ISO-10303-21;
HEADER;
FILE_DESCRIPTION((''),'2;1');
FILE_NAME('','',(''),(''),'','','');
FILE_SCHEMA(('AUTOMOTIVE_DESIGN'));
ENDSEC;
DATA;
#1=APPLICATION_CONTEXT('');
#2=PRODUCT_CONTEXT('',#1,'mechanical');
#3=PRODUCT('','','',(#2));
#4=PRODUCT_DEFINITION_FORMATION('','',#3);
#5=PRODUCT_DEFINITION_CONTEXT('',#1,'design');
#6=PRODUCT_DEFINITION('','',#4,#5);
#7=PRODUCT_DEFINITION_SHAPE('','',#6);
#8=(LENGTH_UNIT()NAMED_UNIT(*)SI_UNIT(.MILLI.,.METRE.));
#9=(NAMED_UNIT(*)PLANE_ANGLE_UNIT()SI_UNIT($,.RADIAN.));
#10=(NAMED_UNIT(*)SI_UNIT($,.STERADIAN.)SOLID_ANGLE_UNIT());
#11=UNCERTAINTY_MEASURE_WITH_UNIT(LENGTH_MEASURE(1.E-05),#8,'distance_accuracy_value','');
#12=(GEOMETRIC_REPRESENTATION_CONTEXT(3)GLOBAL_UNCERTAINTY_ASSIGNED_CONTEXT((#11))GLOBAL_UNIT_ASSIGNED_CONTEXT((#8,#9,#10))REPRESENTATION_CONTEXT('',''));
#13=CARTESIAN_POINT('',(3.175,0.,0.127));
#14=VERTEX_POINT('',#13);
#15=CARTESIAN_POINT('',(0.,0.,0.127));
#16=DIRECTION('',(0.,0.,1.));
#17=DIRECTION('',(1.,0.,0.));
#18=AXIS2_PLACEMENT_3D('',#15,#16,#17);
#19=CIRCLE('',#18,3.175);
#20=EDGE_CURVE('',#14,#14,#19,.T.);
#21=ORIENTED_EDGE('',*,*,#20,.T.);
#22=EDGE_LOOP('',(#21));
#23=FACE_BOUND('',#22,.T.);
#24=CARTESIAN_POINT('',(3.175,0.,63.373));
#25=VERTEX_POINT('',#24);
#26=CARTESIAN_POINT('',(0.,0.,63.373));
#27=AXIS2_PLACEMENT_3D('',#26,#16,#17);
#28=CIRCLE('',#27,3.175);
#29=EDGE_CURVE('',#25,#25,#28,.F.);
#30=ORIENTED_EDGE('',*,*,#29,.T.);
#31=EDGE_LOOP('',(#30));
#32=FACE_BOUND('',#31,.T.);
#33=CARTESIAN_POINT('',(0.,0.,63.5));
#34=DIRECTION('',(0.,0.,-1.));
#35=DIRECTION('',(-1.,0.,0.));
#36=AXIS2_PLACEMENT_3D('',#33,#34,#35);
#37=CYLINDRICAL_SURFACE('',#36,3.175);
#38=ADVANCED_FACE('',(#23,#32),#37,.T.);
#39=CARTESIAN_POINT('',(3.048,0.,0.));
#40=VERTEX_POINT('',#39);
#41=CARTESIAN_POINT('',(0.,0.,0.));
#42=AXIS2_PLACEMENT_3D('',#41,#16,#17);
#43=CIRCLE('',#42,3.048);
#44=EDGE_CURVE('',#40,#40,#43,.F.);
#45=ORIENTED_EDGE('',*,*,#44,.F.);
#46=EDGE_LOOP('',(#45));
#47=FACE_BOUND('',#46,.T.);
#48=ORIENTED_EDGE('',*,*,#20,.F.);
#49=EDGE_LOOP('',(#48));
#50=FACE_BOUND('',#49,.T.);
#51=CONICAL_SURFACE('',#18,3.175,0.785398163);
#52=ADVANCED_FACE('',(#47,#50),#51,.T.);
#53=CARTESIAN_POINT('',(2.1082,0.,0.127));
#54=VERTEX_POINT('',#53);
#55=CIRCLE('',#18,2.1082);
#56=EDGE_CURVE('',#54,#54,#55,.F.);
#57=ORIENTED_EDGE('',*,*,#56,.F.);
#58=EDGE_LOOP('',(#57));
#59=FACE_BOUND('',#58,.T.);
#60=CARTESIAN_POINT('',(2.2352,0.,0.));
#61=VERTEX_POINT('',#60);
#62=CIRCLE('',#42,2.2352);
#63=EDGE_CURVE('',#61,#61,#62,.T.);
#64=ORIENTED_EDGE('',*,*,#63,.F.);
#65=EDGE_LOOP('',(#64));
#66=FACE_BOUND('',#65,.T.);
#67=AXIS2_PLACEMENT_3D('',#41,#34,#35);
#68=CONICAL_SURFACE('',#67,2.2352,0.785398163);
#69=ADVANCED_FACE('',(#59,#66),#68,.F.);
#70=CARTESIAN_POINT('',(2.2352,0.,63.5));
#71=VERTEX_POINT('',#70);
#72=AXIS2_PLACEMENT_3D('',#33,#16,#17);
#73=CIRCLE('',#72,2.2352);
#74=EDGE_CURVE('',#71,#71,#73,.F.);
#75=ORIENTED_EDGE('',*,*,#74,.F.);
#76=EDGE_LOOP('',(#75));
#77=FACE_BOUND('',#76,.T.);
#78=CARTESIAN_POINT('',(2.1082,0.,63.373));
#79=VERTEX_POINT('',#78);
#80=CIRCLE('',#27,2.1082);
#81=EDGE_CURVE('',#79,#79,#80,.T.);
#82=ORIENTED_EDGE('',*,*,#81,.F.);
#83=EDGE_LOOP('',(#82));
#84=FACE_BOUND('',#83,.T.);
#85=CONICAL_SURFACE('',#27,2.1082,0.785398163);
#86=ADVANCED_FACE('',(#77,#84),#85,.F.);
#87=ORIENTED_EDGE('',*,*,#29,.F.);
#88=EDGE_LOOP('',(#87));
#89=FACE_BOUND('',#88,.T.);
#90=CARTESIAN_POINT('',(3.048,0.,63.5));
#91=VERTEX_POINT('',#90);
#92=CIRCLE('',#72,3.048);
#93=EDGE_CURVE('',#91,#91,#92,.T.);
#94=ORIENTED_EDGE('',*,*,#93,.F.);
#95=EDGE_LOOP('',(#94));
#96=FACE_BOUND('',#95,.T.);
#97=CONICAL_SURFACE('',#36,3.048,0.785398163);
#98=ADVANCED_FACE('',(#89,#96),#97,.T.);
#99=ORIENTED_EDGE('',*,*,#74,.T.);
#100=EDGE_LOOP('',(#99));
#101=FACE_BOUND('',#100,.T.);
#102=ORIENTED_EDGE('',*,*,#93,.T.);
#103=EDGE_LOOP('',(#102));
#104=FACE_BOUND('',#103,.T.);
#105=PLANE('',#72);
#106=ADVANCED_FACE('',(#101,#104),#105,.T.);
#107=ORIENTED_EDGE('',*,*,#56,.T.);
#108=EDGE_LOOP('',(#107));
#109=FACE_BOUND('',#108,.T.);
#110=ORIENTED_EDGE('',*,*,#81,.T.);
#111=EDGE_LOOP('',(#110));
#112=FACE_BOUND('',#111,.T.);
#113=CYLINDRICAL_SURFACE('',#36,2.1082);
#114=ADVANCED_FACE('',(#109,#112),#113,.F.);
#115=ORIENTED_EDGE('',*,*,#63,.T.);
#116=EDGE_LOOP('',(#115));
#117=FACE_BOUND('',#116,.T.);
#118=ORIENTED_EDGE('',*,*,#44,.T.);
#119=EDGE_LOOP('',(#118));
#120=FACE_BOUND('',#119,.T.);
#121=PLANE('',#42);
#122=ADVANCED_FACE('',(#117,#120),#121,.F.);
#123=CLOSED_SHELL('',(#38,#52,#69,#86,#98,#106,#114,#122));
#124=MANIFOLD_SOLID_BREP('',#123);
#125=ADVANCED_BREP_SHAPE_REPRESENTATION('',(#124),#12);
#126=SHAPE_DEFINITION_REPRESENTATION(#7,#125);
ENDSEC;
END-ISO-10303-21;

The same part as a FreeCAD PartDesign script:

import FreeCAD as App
import Part
import Sketcher
from FreeCAD import Vector
Q = App.Units.Quantity


def edges_at(feature, points):
    """Names of the edges that pass closest to the given points."""
    edges = feature.Shape.Edges
    near = lambda p: min(range(len(edges)), key=lambda i: edges[i].distToShape(Part.Vertex(*p))[0])
    return sorted({f"Edge{near(p) + 1}" for p in points})

doc = App.newDocument("Part")
body = doc.addObject("PartDesign::Body", "Body")

sketch1 = body.newObject("Sketcher::SketchObject", "Sketch")
sketch1.AttachmentSupport = (doc.getObject("XY_Plane"), [""])
sketch1.MapMode = "FlatFace"
sketch1.addGeometry(Part.Circle(Vector(0, 0, 0), Vector(0, 0, 1), 3.2), False)
sketch1.addGeometry(Part.Circle(Vector(0, 0, 0), Vector(0, 0, 1), 2.1), False)
sketch1.addConstraint(Sketcher.Constraint("Coincident", 0, 3, -1, 1))
sketch1.addConstraint(Sketcher.Constraint("Coincident", 1, 3, -1, 1))
sketch1.addConstraint(Sketcher.Constraint("Diameter", 0, Q("0.25 in")))
sketch1.addConstraint(Sketcher.Constraint("Diameter", 1, Q("0.166 in")))
pad1 = body.newObject("PartDesign::Pad", "Pad")
pad1.Profile = sketch1
pad1.Length = Q("2.5 in")
doc.recompute()

chamfer = body.newObject("PartDesign::Chamfer", "Chamfer")
chamfer.Base = (pad1, edges_at(pad1, [
    (-3.175, 0, 0),
    (-3.175, 0, 63.5),
    (-2.108, 0, 0),
    (-2.108, 0, 63.5),
]))
chamfer.Size = Q("0.005 in")

doc.recompute()
